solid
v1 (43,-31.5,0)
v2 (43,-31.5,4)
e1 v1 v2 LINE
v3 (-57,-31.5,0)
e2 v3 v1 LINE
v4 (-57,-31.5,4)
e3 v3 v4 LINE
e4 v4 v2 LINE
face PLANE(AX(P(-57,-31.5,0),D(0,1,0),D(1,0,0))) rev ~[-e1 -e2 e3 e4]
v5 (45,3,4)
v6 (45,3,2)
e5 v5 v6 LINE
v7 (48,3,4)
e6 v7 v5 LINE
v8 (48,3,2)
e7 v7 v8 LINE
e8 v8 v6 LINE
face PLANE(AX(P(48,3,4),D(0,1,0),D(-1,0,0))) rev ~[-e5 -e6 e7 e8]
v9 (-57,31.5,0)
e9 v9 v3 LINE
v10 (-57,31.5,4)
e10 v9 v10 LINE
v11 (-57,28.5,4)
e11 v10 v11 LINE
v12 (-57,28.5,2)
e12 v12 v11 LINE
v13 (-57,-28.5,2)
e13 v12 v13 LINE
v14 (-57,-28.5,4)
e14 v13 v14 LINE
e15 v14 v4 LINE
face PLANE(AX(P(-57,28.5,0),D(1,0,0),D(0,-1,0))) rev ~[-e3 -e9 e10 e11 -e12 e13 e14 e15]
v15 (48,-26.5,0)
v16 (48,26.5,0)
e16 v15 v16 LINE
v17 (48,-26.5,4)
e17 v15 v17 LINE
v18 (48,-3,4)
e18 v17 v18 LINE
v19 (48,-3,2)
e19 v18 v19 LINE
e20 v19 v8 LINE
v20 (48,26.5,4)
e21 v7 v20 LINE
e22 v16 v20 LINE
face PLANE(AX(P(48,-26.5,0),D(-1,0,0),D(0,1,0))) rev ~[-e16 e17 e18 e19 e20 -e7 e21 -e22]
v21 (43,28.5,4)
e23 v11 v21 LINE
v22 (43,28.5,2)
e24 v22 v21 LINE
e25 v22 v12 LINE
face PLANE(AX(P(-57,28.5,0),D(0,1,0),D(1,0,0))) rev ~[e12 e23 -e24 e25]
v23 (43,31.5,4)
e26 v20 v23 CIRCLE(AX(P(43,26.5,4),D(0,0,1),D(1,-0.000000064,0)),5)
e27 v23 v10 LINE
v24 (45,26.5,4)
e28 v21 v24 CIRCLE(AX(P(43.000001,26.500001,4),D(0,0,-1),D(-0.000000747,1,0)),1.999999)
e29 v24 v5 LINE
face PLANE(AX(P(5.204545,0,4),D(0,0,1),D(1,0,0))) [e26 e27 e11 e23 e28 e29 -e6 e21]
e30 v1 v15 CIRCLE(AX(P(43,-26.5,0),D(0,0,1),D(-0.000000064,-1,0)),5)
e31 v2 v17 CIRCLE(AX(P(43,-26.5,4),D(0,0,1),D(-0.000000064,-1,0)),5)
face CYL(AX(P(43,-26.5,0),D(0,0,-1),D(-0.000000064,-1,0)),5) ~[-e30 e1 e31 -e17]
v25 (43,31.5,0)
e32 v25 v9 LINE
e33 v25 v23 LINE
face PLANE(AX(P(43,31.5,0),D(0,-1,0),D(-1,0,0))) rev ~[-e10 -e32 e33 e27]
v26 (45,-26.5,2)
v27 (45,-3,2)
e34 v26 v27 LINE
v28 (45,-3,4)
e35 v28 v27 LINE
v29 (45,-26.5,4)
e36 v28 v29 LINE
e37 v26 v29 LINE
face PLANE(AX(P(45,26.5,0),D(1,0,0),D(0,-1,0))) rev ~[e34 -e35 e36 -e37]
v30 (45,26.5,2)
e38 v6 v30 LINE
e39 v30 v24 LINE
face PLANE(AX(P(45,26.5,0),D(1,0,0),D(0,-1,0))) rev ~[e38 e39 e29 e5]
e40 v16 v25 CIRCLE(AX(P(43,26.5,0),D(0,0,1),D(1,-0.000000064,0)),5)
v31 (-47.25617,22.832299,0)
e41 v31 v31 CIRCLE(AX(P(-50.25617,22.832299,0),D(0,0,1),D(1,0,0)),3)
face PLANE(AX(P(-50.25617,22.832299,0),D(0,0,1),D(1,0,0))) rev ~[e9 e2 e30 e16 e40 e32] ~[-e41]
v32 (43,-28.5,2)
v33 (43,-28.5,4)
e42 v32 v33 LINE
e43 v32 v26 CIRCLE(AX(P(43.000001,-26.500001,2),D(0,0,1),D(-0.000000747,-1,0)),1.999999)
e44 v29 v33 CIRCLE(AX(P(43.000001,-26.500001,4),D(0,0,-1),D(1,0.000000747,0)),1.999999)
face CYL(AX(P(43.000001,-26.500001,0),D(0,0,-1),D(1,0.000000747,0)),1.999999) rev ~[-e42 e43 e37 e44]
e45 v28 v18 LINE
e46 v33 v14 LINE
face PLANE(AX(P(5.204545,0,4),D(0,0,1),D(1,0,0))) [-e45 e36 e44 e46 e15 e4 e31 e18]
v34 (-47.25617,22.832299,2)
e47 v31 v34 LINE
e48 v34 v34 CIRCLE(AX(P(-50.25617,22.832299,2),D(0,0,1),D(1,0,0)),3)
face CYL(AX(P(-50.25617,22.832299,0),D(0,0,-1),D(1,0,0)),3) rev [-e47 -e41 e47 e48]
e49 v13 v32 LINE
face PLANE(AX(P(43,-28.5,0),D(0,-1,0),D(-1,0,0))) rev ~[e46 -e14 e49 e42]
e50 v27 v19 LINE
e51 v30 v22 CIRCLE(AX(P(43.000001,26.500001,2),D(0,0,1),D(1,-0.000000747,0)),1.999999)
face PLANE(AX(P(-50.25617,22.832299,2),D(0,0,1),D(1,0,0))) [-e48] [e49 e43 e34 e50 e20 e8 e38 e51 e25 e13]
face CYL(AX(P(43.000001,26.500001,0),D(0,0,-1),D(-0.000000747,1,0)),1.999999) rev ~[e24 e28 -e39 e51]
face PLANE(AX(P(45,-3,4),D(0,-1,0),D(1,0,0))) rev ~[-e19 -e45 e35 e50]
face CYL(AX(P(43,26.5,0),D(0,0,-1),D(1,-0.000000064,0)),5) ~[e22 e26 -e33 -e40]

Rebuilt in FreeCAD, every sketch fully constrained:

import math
import FreeCAD as App
import Part
import Sketcher

V = App.Vector
Q = App.Units.Quantity

doc = App.newDocument("Part")
body = doc.addObject("PartDesign::Body", "Body")

sketch1 = body.newObject("Sketcher::SketchObject", "Sketch")
sketch1.AttachmentSupport = (doc.getObject("XY_Plane"), [""])
sketch1.MapMode = "FlatFace"
sketch1.addGeometry(Part.LineSegment(V(-57, -28.5, 0), V(43, -28.5, 0)), False)
sketch1.addGeometry(Part.ArcOfCircle(Part.Circle(V(43, -26.5, 0), V(0, 0, 1), 2), math.radians(-90), math.radians(0)), False)
sketch1.addGeometry(Part.LineSegment(V(45, -26.5, 0), V(45, 26.5, 0)), False)
sketch1.addGeometry(Part.ArcOfCircle(Part.Circle(V(43, 26.5, 0), V(0, 0, 1), 2), math.radians(0), math.radians(90)), False)
sketch1.addGeometry(Part.LineSegment(V(43, 28.5, 0), V(-57, 28.5, 0)), False)
sketch1.addGeometry(Part.LineSegment(V(-57, 28.5, 0), V(-57, -28.5, 0)), False)
sketch1.addGeometry(Part.Circle(V(-50.3, 22.8, 0), V(0, 0, 1), 3), False)
sketch1.addConstraint(Sketcher.Constraint("Tangent", 0, 2, 1, 1))
sketch1.addConstraint(Sketcher.Constraint("Tangent", 1, 2, 2, 1))
sketch1.addConstraint(Sketcher.Constraint("Tangent", 2, 2, 3, 1))
sketch1.addConstraint(Sketcher.Constraint("Tangent", 3, 2, 4, 1))
sketch1.addConstraint(Sketcher.Constraint("Coincident", 4, 2, 5, 1))
sketch1.addConstraint(Sketcher.Constraint("Coincident", 5, 2, 0, 1))
sketch1.addConstraint(Sketcher.Constraint("Horizontal", 0))
sketch1.addConstraint(Sketcher.Constraint("Vertical", 2))
sketch1.addConstraint(Sketcher.Constraint("Horizontal", 4))
sketch1.addConstraint(Sketcher.Constraint("Vertical", 5))
sketch1.addConstraint(Sketcher.Constraint("Equal", 1, 3))
sketch1.addConstraint(Sketcher.Constraint("Diameter", 6, Q("6 mm")))
sketch1.addConstraint(Sketcher.Constraint("Radius", 1, Q("1.999999 mm")))
sketch1.addConstraint(Sketcher.Constraint("DistanceX", 0, 1, 0, 2, Q("100 mm")))
sketch1.addConstraint(Sketcher.Constraint("DistanceY", 2, 1, 2, 2, Q("53 mm")))
sketch1.addConstraint(Sketcher.Constraint("DistanceX", -1, 1, 1, 3, Q("43.000001 mm")))
sketch1.addConstraint(Sketcher.Constraint("DistanceY", 1, 3, -1, 1, Q("26.500001 mm")))
sketch1.addConstraint(Sketcher.Constraint("DistanceY", -1, 1, 6, 3, Q("22.832299 mm")))
sketch1.addConstraint(Sketcher.Constraint("DistanceX", 6, 3, -1, 1, Q("50.25617 mm")))
pad1 = body.newObject("PartDesign::Pad", "Pad")
pad1.Profile = sketch1
pad1.Length = 2

sketch2 = body.newObject("Sketcher::SketchObject", "Sketch001")
sketch2.AttachmentSupport = (doc.getObject("XY_Plane"), [""])
sketch2.MapMode = "FlatFace"
sketch2.addGeometry(Part.ArcOfCircle(Part.Circle(V(43, -26.5, 0), V(0, 0, 1), 2), math.radians(-90), math.radians(0)), False)
sketch2.addGeometry(Part.LineSegment(V(43, -28.5, 0), V(-57, -28.5, 0)), False)
sketch2.addGeometry(Part.LineSegment(V(-57, -28.5, 0), V(-57, -31.5, 0)), False)
sketch2.addGeometry(Part.LineSegment(V(-57, -31.5, 0), V(43, -31.5, 0)), False)
sketch2.addGeometry(Part.ArcOfCircle(Part.Circle(V(43, -26.5, 0), V(0, 0, 1), 5), math.radians(-90), math.radians(0)), False)
sketch2.addGeometry(Part.LineSegment(V(48, -26.5, 0), V(48, 26.5, 0)), False)
sketch2.addGeometry(Part.ArcOfCircle(Part.Circle(V(43, 26.5, 0), V(0, 0, 1), 5), math.radians(0), math.radians(90)), False)
sketch2.addGeometry(Part.LineSegment(V(43, 31.5, 0), V(-57, 31.5, 0)), False)
sketch2.addGeometry(Part.LineSegment(V(-57, 31.5, 0), V(-57, 28.5, 0)), False)
sketch2.addGeometry(Part.LineSegment(V(-57, 28.5, 0), V(43, 28.5, 0)), False)
sketch2.addGeometry(Part.ArcOfCircle(Part.Circle(V(43, 26.5, 0), V(0, 0, 1), 2), math.radians(0), math.radians(90)), False)
sketch2.addGeometry(Part.LineSegment(V(45, 26.5, 0), V(45, -26.5, 0)), False)
sketch2.addConstraint(Sketcher.Constraint("Tangent", 0, 1, 1, 1))
sketch2.addConstraint(Sketcher.Constraint("Coincident", 1, 2, 2, 1))
sketch2.addConstraint(Sketcher.Constraint("Coincident", 2, 2, 3, 1))
sketch2.addConstraint(Sketcher.Constraint("Tangent", 3, 2, 4, 1))
sketch2.addConstraint(Sketcher.Constraint("Tangent", 4, 2, 5, 1))
sketch2.addConstraint(Sketcher.Constraint("Tangent", 5, 2, 6, 1))
sketch2.addConstraint(Sketcher.Constraint("Tangent", 6, 2, 7, 1))
sketch2.addConstraint(Sketcher.Constraint("Coincident", 7, 2, 8, 1))
sketch2.addConstraint(Sketcher.Constraint("Coincident", 8, 2, 9, 1))
sketch2.addConstraint(Sketcher.Constraint("Tangent", 9, 2, 10, 2))
sketch2.addConstraint(Sketcher.Constraint("Tangent", 10, 1, 11, 1))
sketch2.addConstraint(Sketcher.Constraint("Tangent", 11, 2, 0, 2))
sketch2.addConstraint(Sketcher.Constraint("Horizontal", 1))
sketch2.addConstraint(Sketcher.Constraint("Vertical", 2))
sketch2.addConstraint(Sketcher.Constraint("Horizontal", 3))
sketch2.addConstraint(Sketcher.Constraint("Vertical", 5))
sketch2.addConstraint(Sketcher.Constraint("Horizontal", 7))
sketch2.addConstraint(Sketcher.Constraint("Vertical", 8))
sketch2.addConstraint(Sketcher.Constraint("Horizontal", 9))
sketch2.addConstraint(Sketcher.Constraint("Vertical", 11))
sketch2.addConstraint(Sketcher.Constraint("Coincident", 4, 3, 0, 3))
sketch2.addConstraint(Sketcher.Constraint("Coincident", 10, 3, 6, 3))
sketch2.addConstraint(Sketcher.Constraint("Equal", 4, 6))
sketch2.addConstraint(Sketcher.Constraint("Symmetric", 2, 2, 7, 2, -1))
sketch2.addConstraint(Sketcher.Constraint("Radius", 0, Q("1.999999 mm")))
sketch2.addConstraint(Sketcher.Constraint("Radius", 4, Q("5 mm")))
sketch2.addConstraint(Sketcher.Constraint("DistanceX", 1, 2, 1, 1, Q("100 mm")))
sketch2.addConstraint(Sketcher.Constraint("DistanceY", 5, 1, 5, 2, Q("53 mm")))
sketch2.addConstraint(Sketcher.Constraint("DistanceX", -1, 1, 0, 3, Q("43.000001 mm")))
pad2 = body.newObject("PartDesign::Pad", "Pad001")
pad2.Profile = sketch2
pad2.Length = 4

sketch3 = body.newObject("Sketcher::SketchObject", "Sketch002")
sketch3.AttachmentSupport = (doc.getObject("XY_Plane"), [""])
sketch3.MapMode = "FlatFace"
sketch3.AttachmentOffset = App.Placement(V(0, 0, 4), App.Rotation())
sketch3.addGeometry(Part.LineSegment(V(45, 3, 0), V(45, -3, 0)), False)
sketch3.addGeometry(Part.LineSegment(V(45, -3, 0), V(48, -3, 0)), False)
sketch3.addGeometry(Part.LineSegment(V(48, -3, 0), V(48, 3, 0)), False)
sketch3.addGeometry(Part.LineSegment(V(48, 3, 0), V(45, 3, 0)), False)
sketch3.addConstraint(Sketcher.Constraint("Coincident", 0, 2, 1, 1))
sketch3.addConstraint(Sketcher.Constraint("Coincident", 1, 2, 2, 1))
sketch3.addConstraint(Sketcher.Constraint("Coincident", 2, 2, 3, 1))
sketch3.addConstraint(Sketcher.Constraint("Coincident", 3, 2, 0, 1))
sketch3.addConstraint(Sketcher.Constraint("Vertical", 0))
sketch3.addConstraint(Sketcher.Constraint("Horizontal", 1))
sketch3.addConstraint(Sketcher.Constraint("Vertical", 2))
sketch3.addConstraint(Sketcher.Constraint("Horizontal", 3))
sketch3.addConstraint(Sketcher.Constraint("DistanceX", 1, 1, 1, 2, Q("3 mm")))
sketch3.addConstraint(Sketcher.Constraint("DistanceY", 0, 2, 0, 1, Q("6 mm")))
sketch3.addConstraint(Sketcher.Constraint("DistanceX", -1, 1, 0, 2, Q("45 mm")))
sketch3.addConstraint(Sketcher.Constraint("DistanceY", 0, 2, -1, 1, Q("3 mm")))
pocket1 = body.newObject("PartDesign::Pocket", "Pocket")
pocket1.Profile = sketch3
pocket1.Length = 2

sketch4 = body.newObject("Sketcher::SketchObject", "Sketch003")
sketch4.AttachmentSupport = (doc.getObject("XY_Plane"), [""])
sketch4.MapMode = "FlatFace"
sketch4.addGeometry(Part.Circle(V(-50.3, 22.8, 0), V(0, 0, 1), 3), False)
sketch4.addConstraint(Sketcher.Constraint("Diameter", 0, Q("6 mm")))
sketch4.addConstraint(Sketcher.Constraint("DistanceY", -1, 1, 0, 3, Q("22.832299 mm")))
sketch4.addConstraint(Sketcher.Constraint("DistanceX", 0, 3, -1, 1, Q("50.25617 mm")))
pocket2 = body.newObject("PartDesign::Pocket", "Pocket001")
pocket2.Profile = sketch4
pocket2.Length = 3
pocket2.Reversed = True

doc.recompute()
